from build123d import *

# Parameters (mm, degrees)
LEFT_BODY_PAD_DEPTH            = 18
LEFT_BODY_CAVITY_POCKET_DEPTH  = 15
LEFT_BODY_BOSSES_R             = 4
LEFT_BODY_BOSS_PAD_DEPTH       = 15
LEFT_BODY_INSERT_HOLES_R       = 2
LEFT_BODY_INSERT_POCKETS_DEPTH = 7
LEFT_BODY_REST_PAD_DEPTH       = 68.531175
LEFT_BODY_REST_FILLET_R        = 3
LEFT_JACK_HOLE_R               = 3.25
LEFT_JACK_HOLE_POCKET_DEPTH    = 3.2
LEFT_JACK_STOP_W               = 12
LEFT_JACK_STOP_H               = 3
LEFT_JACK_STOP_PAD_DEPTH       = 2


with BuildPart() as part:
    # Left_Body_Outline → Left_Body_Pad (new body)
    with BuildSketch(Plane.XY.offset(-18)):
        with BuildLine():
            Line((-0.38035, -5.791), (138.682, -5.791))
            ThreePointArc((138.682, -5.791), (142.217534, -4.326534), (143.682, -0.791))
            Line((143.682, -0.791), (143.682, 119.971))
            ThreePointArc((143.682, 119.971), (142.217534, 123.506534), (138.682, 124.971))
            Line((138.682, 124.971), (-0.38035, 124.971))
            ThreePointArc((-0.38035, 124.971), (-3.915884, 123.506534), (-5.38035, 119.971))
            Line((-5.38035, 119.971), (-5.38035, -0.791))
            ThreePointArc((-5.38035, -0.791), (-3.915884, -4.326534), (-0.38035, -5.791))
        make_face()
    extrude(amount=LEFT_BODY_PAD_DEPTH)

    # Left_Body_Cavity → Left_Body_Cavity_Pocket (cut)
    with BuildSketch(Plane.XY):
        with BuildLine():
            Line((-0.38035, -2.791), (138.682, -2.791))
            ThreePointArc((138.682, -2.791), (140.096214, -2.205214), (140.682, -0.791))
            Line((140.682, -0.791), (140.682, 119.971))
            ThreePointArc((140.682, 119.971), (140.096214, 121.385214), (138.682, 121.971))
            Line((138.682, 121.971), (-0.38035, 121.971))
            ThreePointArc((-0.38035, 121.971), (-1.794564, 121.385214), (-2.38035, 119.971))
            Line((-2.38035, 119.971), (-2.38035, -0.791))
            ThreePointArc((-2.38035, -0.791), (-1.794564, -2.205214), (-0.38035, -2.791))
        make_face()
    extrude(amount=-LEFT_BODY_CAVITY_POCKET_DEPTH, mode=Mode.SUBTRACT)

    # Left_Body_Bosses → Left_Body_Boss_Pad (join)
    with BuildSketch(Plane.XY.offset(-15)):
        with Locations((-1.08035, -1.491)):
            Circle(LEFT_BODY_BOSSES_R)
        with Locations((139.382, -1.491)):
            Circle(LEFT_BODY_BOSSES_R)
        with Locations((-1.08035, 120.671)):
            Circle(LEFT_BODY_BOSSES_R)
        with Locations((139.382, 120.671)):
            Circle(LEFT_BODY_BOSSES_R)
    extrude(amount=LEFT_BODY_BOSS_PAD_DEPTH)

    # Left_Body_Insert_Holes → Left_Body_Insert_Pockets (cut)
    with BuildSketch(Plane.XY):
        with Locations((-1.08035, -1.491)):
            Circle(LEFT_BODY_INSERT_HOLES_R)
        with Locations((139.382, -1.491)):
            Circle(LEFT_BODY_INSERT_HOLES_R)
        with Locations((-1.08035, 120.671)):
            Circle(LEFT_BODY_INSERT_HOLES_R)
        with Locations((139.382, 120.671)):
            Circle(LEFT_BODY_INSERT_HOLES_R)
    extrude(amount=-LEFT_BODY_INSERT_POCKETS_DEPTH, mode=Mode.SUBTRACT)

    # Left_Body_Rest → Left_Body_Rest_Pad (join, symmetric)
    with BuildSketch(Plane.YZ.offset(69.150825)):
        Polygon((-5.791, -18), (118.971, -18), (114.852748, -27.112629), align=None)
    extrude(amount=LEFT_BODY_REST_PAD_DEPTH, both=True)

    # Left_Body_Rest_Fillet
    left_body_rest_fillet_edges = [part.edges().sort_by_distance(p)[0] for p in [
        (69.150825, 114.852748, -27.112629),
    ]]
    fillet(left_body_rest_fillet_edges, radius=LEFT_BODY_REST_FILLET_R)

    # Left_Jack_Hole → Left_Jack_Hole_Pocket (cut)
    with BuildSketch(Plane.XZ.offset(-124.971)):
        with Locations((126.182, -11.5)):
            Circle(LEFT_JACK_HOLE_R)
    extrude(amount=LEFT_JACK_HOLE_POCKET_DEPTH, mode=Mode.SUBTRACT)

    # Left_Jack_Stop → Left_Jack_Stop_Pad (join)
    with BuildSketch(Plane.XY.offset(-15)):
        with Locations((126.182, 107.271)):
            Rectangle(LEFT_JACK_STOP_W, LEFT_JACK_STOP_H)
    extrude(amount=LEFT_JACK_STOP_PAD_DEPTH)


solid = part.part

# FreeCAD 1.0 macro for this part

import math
import FreeCAD as App
import Part
import Sketcher
Q = App.Units.Quantity


def edges_at(feature, points):
    """Names of the edges that pass closest to the given points."""
    edges = feature.Shape.Edges
    near = lambda p: min(range(len(edges)), key=lambda i: edges[i].distToShape(Part.Vertex(*p))[0])
    return sorted({f"Edge{near(p) + 1}" for p in points})

doc = App.newDocument("Part")
body = doc.addObject("PartDesign::Body", "Body")

sketch1 = body.newObject("Sketcher::SketchObject", "Sketch")
sketch1.AttachmentSupport = (doc.getObject("XY_Plane"), [""])
sketch1.MapMode = "FlatFace"
sketch1.AttachmentOffset = App.Placement(App.Vector(0, 0, -18), App.Rotation())
sketch1.addGeometry([
    Part.LineSegment(App.Vector(-0.38035, -5.791, 0), App.Vector(138.682, -5.791, 0)),
    Part.ArcOfCircle(Part.Circle(App.Vector(138.682, -0.791, 0), App.Vector(0, 0, 1), 5), math.radians(-90.000004), math.radians(0.000004)),
    Part.LineSegment(App.Vector(143.682, -0.791, 0), App.Vector(143.682, 119.971, 0)),
    Part.ArcOfCircle(Part.Circle(App.Vector(138.682, 119.971, 0), App.Vector(0, 0, 1), 5), math.radians(-0.000004), math.radians(90.000004)),
    Part.LineSegment(App.Vector(138.682, 124.971, 0), App.Vector(-0.38035, 124.971, 0)),
    Part.ArcOfCircle(Part.Circle(App.Vector(-0.38035, 119.971, 0), App.Vector(0, 0, 1), 5), math.radians(89.999996), math.radians(180.000004)),
    Part.LineSegment(App.Vector(-5.38035, 119.971, 0), App.Vector(-5.38035, -0.791, 0)),
    Part.ArcOfCircle(Part.Circle(App.Vector(-0.38035, -0.791, 0), App.Vector(0, 0, 1), 5), math.radians(179.999996), math.radians(270.000004)),
], False)
sketch1.addConstraint([
    Sketcher.Constraint("Tangent", 0, 2, 1, 1),
    Sketcher.Constraint("Tangent", 1, 2, 2, 1),
    Sketcher.Constraint("Tangent", 2, 2, 3, 1),
    Sketcher.Constraint("Tangent", 3, 2, 4, 1),
    Sketcher.Constraint("Tangent", 4, 2, 5, 1),
    Sketcher.Constraint("Tangent", 5, 2, 6, 1),
    Sketcher.Constraint("Tangent", 6, 2, 7, 1),
    Sketcher.Constraint("Tangent", 7, 2, 0, 1),
    Sketcher.Constraint("Horizontal", 0),
    Sketcher.Constraint("Vertical", 2),
    Sketcher.Constraint("Horizontal", 4),
    Sketcher.Constraint("Vertical", 6),
    Sketcher.Constraint("Equal", 1, 3),
    Sketcher.Constraint("Equal", 3, 5),
    Sketcher.Constraint("Equal", 5, 7),
    Sketcher.Constraint("Radius", 1, Q("5 mm")),
    Sketcher.Constraint("DistanceY", 2, 1, 2, 2, Q("120.762 mm")),
    Sketcher.Constraint("DistanceX", -1, 1, 1, 3, Q("138.682 mm")),
    Sketcher.Constraint("DistanceY", 1, 3, -1, 1, Q("0.791 mm")),
    Sketcher.Constraint("DistanceX", 0, 1, 0, 2, Q("139.06235 mm")),
])
pad1 = body.newObject("PartDesign::Pad", "Pad")
pad1.Profile = sketch1
pad1.Length = 18

sketch2 = body.newObject("Sketcher::SketchObject", "Sketch001")
sketch2.AttachmentSupport = (doc.getObject("XY_Plane"), [""])
sketch2.MapMode = "FlatFace"
sketch2.addGeometry([
    Part.LineSegment(App.Vector(-0.38035, -2.791, 0), App.Vector(138.682, -2.791, 0)),
    Part.ArcOfCircle(Part.Circle(App.Vector(138.682001, -0.791001, 0), App.Vector(0, 0, 1), 1.999999), math.radians(-90.000043), math.radians(0.000043)),
    Part.LineSegment(App.Vector(140.682, -0.791, 0), App.Vector(140.682, 119.971, 0)),
    Part.ArcOfCircle(Part.Circle(App.Vector(138.682001, 119.971001, 0), App.Vector(0, 0, 1), 1.999999), math.radians(-0.000043), math.radians(90.000043)),
    Part.LineSegment(App.Vector(138.682, 121.971, 0), App.Vector(-0.38035, 121.971, 0)),
    Part.ArcOfCircle(Part.Circle(App.Vector(-0.380351, 119.971001, 0), App.Vector(0, 0, 1), 1.999999), math.radians(89.999957), math.radians(180.000043)),
    Part.LineSegment(App.Vector(-2.38035, 119.971, 0), App.Vector(-2.38035, -0.791, 0)),
    Part.ArcOfCircle(Part.Circle(App.Vector(-0.380351, -0.791001, 0), App.Vector(0, 0, 1), 1.999999), math.radians(179.999957), math.radians(270.000043)),
], False)
sketch2.addConstraint([
    Sketcher.Constraint("Tangent", 0, 2, 1, 1),
    Sketcher.Constraint("Tangent", 1, 2, 2, 1),
    Sketcher.Constraint("Tangent", 2, 2, 3, 1),
    Sketcher.Constraint("Tangent", 3, 2, 4, 1),
    Sketcher.Constraint("Tangent", 4, 2, 5, 1),
    Sketcher.Constraint("Tangent", 5, 2, 6, 1),
    Sketcher.Constraint("Tangent", 6, 2, 7, 1),
    Sketcher.Constraint("Tangent", 7, 2, 0, 1),
    Sketcher.Constraint("Horizontal", 0),
    Sketcher.Constraint("Vertical", 2),
    Sketcher.Constraint("Horizontal", 4),
    Sketcher.Constraint("Vertical", 6),
    Sketcher.Constraint("Equal", 1, 3),
    Sketcher.Constraint("Equal", 3, 5),
    Sketcher.Constraint("Equal", 5, 7),
    Sketcher.Constraint("Radius", 1, Q("1.999999 mm")),
    Sketcher.Constraint("DistanceY", 2, 1, 2, 2, Q("120.762 mm")),
    Sketcher.Constraint("DistanceX", -1, 1, 1, 3, Q("138.682001 mm")),
    Sketcher.Constraint("DistanceY", 1, 3, -1, 1, Q("0.791001 mm")),
    Sketcher.Constraint("DistanceX", 0, 1, 0, 2, Q("139.06235 mm")),
])
pocket1 = body.newObject("PartDesign::Pocket", "Pocket")
pocket1.Profile = sketch2
pocket1.Length = 15

sketch3 = body.newObject("Sketcher::SketchObject", "Sketch002")
sketch3.AttachmentSupport = (doc.getObject("XY_Plane"), [""])
sketch3.MapMode = "FlatFace"
sketch3.AttachmentOffset = App.Placement(App.Vector(0, 0, -15), App.Rotation())
sketch3.addGeometry([
    Part.Circle(App.Vector(-1.08035, -1.491, 0), App.Vector(0, 0, 1), 4),
    Part.Circle(App.Vector(139.382, -1.491, 0), App.Vector(0, 0, 1), 4),
    Part.Circle(App.Vector(-1.08035, 120.671, 0), App.Vector(0, 0, 1), 4),
    Part.Circle(App.Vector(139.382, 120.671, 0), App.Vector(0, 0, 1), 4),
], False)
sketch3.addConstraint([
    Sketcher.Constraint("Equal", 0, 1),
    Sketcher.Constraint("Equal", 1, 2),
    Sketcher.Constraint("Equal", 2, 3),
    Sketcher.Constraint("Horizontal", 0, 3, 1, 3),
    Sketcher.Constraint("Horizontal", 2, 3, 3, 3),
    Sketcher.Constraint("Vertical", 0, 3, 2, 3),
    Sketcher.Constraint("Vertical", 1, 3, 3, 3),
    Sketcher.Constraint("Diameter", 0, Q("8 mm")),
    Sketcher.Constraint("DistanceY", 0, 3, -1, 1, Q("1.491 mm")),
    Sketcher.Constraint("DistanceX", -1, 1, 1, 3, Q("139.382 mm")),
    Sketcher.Constraint("DistanceY", -1, 1, 2, 3, Q("120.671 mm")),
    Sketcher.Constraint("DistanceX", 0, 3, -1, 1, Q("1.08035 mm")),
])
pad2 = body.newObject("PartDesign::Pad", "Pad001")
pad2.Profile = sketch3
pad2.Length = 15

sketch4 = body.newObject("Sketcher::SketchObject", "Sketch003")
sketch4.AttachmentSupport = (doc.getObject("XY_Plane"), [""])
sketch4.MapMode = "FlatFace"
sketch4.addGeometry([
    Part.Circle(App.Vector(-1.08035, -1.491, 0), App.Vector(0, 0, 1), 2),
    Part.Circle(App.Vector(139.382, -1.491, 0), App.Vector(0, 0, 1), 2),
    Part.Circle(App.Vector(-1.08035, 120.671, 0), App.Vector(0, 0, 1), 2),
    Part.Circle(App.Vector(139.382, 120.671, 0), App.Vector(0, 0, 1), 2),
], False)
sketch4.addConstraint([
    Sketcher.Constraint("Equal", 0, 1),
    Sketcher.Constraint("Equal", 1, 2),
    Sketcher.Constraint("Equal", 2, 3),
    Sketcher.Constraint("Horizontal", 0, 3, 1, 3),
    Sketcher.Constraint("Horizontal", 2, 3, 3, 3),
    Sketcher.Constraint("Vertical", 0, 3, 2, 3),
    Sketcher.Constraint("Vertical", 1, 3, 3, 3),
    Sketcher.Constraint("Diameter", 0, Q("4 mm")),
    Sketcher.Constraint("DistanceY", 0, 3, -1, 1, Q("1.491 mm")),
    Sketcher.Constraint("DistanceX", -1, 1, 1, 3, Q("139.382 mm")),
    Sketcher.Constraint("DistanceY", -1, 1, 2, 3, Q("120.671 mm")),
    Sketcher.Constraint("DistanceX", 0, 3, -1, 1, Q("1.08035 mm")),
])
pocket2 = body.newObject("PartDesign::Pocket", "Pocket001")
pocket2.Profile = sketch4
pocket2.Length = 7

sketch5 = body.newObject("Sketcher::SketchObject", "Sketch004")
sketch5.AttachmentSupport = (doc.getObject("YZ_Plane"), [""])
sketch5.MapMode = "FlatFace"
sketch5.AttachmentOffset = App.Placement(App.Vector(0, 0, 69.150825), App.Rotation())
sketch5.addGeometry([
    Part.LineSegment(App.Vector(118.971, -18, 0), App.Vector(-5.791, -18, 0)),
    Part.LineSegment(App.Vector(-5.791, -18, 0), App.Vector(114.852748, -27.112629, 0)),
    Part.LineSegment(App.Vector(114.852748, -27.112629, 0), App.Vector(118.971, -18, 0)),
], False)
sketch5.addConstraint([
    Sketcher.Constraint("Coincident", 0, 2, 1, 1),
    Sketcher.Constraint("Coincident", 1, 2, 2, 1),
    Sketcher.Constraint("Coincident", 2, 2, 0, 1),
    Sketcher.Constraint("Horizontal", 0),
    Sketcher.Constraint("Distance", 2, Q("10 mm")),
    Sketcher.Constraint("DistanceY", 0, 2, -1, 1, Q("18 mm")),
    Sketcher.Constraint("DistanceX", 0, 2, 0, 1, Q("124.762 mm")),
    Sketcher.Constraint("DistanceX", 0, 2, -1, 1, Q("5.791 mm")),
    Sketcher.Constraint("DistanceX", -1, 1, 1, 2, Q("114.852748 mm")),
])
pad3 = body.newObject("PartDesign::Pad", "Pad002")
pad3.Profile = sketch5
pad3.Length = 137.06235
pad3.Midplane = True
doc.recompute()

fillet = body.newObject("PartDesign::Fillet", "Fillet")
fillet.Base = (pad3, edges_at(pad3, [(69.151, 114.853, -27.113)]))
fillet.Radius = 3

sketch6 = body.newObject("Sketcher::SketchObject", "Sketch005")
sketch6.AttachmentSupport = (doc.getObject("XZ_Plane"), [""])
sketch6.MapMode = "FlatFace"
sketch6.AttachmentOffset = App.Placement(App.Vector(0, 0, -124.971), App.Rotation())
sketch6.addGeometry(Part.Circle(App.Vector(126.182, -11.5, 0), App.Vector(0, 0, 1), 3.25), False)
sketch6.addConstraint([
    Sketcher.Constraint("Diameter", 0, Q("6.5 mm")),
    Sketcher.Constraint("DistanceY", 0, 3, -1, 1, Q("11.5 mm")),
    Sketcher.Constraint("DistanceX", -1, 1, 0, 3, Q("126.182 mm")),
])
pocket3 = body.newObject("PartDesign::Pocket", "Pocket002")
pocket3.Profile = sketch6
pocket3.Length = 3.2
pocket3.Reversed = True

sketch7 = body.newObject("Sketcher::SketchObject", "Sketch006")
sketch7.AttachmentSupport = (doc.getObject("XY_Plane"), [""])
sketch7.MapMode = "FlatFace"
sketch7.AttachmentOffset = App.Placement(App.Vector(0, 0, -15), App.Rotation())
sketch7.addGeometry([
    Part.LineSegment(App.Vector(120.182, 108.771, 0), App.Vector(120.182, 105.771, 0)),
    Part.LineSegment(App.Vector(120.182, 105.771, 0), App.Vector(132.182, 105.771, 0)),
    Part.LineSegment(App.Vector(132.182, 105.771, 0), App.Vector(132.182, 108.771, 0)),
    Part.LineSegment(App.Vector(132.182, 108.771, 0), App.Vector(120.182, 108.771, 0)),
], False)
sketch7.addConstraint([
    Sketcher.Constraint("Coincident", 0, 2, 1, 1),
    Sketcher.Constraint("Coincident", 1, 2, 2, 1),
    Sketcher.Constraint("Coincident", 2, 2, 3, 1),
    Sketcher.Constraint("Coincident", 3, 2, 0, 1),
    Sketcher.Constraint("Vertical", 0),
    Sketcher.Constraint("Horizontal", 1),
    Sketcher.Constraint("Vertical", 2),
    Sketcher.Constraint("Horizontal", 3),
    Sketcher.Constraint("DistanceX", 1, 1, 1, 2, Q("12 mm")),
    Sketcher.Constraint("DistanceY", 0, 2, 0, 1, Q("3 mm")),
    Sketcher.Constraint("DistanceX", -1, 1, 0, 2, Q("120.182 mm")),
    Sketcher.Constraint("DistanceY", -1, 1, 0, 2, Q("105.771 mm")),
])
pad4 = body.newObject("PartDesign::Pad", "Pad003")
pad4.Profile = sketch7
pad4.Length = 2

doc.recompute()
